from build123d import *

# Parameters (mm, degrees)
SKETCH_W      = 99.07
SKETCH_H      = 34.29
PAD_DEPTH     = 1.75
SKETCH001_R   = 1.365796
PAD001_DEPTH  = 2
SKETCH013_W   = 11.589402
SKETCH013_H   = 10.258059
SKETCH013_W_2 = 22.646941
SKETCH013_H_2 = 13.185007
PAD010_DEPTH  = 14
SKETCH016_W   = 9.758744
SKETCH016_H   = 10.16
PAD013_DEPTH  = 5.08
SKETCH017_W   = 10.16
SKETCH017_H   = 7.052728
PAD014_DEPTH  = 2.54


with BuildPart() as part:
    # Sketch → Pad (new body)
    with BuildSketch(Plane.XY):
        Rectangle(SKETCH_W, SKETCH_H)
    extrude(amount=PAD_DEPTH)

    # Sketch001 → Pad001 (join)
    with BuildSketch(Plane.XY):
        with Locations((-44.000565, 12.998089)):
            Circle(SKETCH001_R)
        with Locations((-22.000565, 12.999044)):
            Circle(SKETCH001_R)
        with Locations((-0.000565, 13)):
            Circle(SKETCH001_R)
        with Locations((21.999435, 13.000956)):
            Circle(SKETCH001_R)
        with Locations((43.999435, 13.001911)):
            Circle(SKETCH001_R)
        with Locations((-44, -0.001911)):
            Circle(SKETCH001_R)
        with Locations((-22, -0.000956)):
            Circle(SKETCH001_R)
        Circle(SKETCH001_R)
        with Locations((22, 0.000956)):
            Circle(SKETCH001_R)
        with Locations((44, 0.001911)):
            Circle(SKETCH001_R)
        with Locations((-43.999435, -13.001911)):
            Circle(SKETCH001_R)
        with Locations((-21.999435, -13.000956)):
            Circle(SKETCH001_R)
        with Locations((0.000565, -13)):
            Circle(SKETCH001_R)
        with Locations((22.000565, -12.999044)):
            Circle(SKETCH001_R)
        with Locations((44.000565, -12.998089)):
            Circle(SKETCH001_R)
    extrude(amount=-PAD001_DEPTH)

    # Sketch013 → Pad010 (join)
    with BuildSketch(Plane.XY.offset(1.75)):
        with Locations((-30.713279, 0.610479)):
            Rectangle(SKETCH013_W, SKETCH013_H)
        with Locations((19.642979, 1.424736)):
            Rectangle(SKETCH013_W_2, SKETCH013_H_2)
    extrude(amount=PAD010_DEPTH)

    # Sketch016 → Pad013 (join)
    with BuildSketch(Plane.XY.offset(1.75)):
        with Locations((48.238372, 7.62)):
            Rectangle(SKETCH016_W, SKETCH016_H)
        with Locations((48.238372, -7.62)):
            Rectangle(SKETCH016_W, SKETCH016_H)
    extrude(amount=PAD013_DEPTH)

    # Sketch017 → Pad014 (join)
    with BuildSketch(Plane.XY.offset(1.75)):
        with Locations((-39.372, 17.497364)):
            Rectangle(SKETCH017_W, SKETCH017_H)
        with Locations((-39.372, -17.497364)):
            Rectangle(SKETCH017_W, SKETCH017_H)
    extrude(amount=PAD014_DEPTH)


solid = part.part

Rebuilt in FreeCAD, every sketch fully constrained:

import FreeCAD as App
import Part
import Sketcher

V = App.Vector
Q = App.Units.Quantity


def add_polygon(sketch, points):
    """Adds a closed chain of lines whose ends are joined by coincident constraints."""
    first, n = sketch.GeometryCount, len(points)
    for a, b in zip(points, points[1:] + points[:1]):
        sketch.addGeometry(Part.LineSegment(App.Vector(*a, 0), App.Vector(*b, 0)), False)
    for i in range(n):
        sketch.addConstraint(Sketcher.Constraint("Coincident", first + i, 2, first + (i + 1) % n, 1))

doc = App.newDocument("Part")
body = doc.addObject("PartDesign::Body", "Body")

# Sketch on XY plane
sketch1 = doc.addObject("Sketcher::SketchObject", "Sketch")
body.addObject(sketch1)
sketch1.AttachmentSupport = (doc.XY_Plane, [""])
sketch1.MapMode = "FlatFace"
add_polygon(sketch1, [(-50, 17), (-50, -17), (50, -17), (50, 17)])  # lines 0-3
sketch1.addConstraint(Sketcher.Constraint("Vertical", 0))
sketch1.addConstraint(Sketcher.Constraint("Horizontal", 1))
sketch1.addConstraint(Sketcher.Constraint("Vertical", 2))
sketch1.addConstraint(Sketcher.Constraint("Horizontal", 3))
sketch1.addConstraint(Sketcher.Constraint("Symmetric", 0, 2, 2, 2, -1, 1))
sketch1.addConstraint(Sketcher.Constraint("DistanceY", 0, 2, 0, 1, Q("1.35 in")))
sketch1.addConstraint(Sketcher.Constraint("DistanceX", 1, 1, 1, 2, 99.07))
pad1 = doc.addObject("PartDesign::Pad", "Pad")
body.addObject(pad1)
pad1.Profile = sketch1
pad1.Length = 1.75

# Sketch on XY plane
sketch2 = doc.addObject("Sketcher::SketchObject", "Sketch001")
body.addObject(sketch2)
sketch2.AttachmentSupport = (doc.XY_Plane, [""])
sketch2.MapMode = "FlatFace"
sketch2.addGeometry(Part.Circle(V(-44, 13, 0), V(0, 0, 1), 1.4), False)
sketch2.addGeometry(Part.Circle(V(-22, 13, 0), V(0, 0, 1), 1.4), False)
sketch2.addGeometry(Part.Circle(V(0, 13, 0), V(0, 0, 1), 1.4), False)
sketch2.addGeometry(Part.Circle(V(22, 13, 0), V(0, 0, 1), 1.4), False)
sketch2.addGeometry(Part.Circle(V(44, 13, 0), V(0, 0, 1), 1.4), False)
sketch2.addGeometry(Part.Circle(V(-44, 0, 0), V(0, 0, 1), 1.4), False)
sketch2.addGeometry(Part.Circle(V(-22, 0, 0), V(0, 0, 1), 1.4), False)
sketch2.addGeometry(Part.Circle(V(0, 0, 0), V(0, 0, 1), 1.4), False)
sketch2.addGeometry(Part.Circle(V(22, 0, 0), V(0, 0, 1), 1.4), False)
sketch2.addGeometry(Part.Circle(V(44, 0, 0), V(0, 0, 1), 1.4), False)
sketch2.addGeometry(Part.Circle(V(-44, -13, 0), V(0, 0, 1), 1.4), False)
sketch2.addGeometry(Part.Circle(V(-22, -13, 0), V(0, 0, 1), 1.4), False)
sketch2.addGeometry(Part.Circle(V(0, -13, 0), V(0, 0, 1), 1.4), False)
sketch2.addGeometry(Part.Circle(V(22, -13, 0), V(0, 0, 1), 1.4), False)
sketch2.addGeometry(Part.Circle(V(44, -13, 0), V(0, 0, 1), 1.4), False)
sketch2.addConstraint(Sketcher.Constraint("Coincident", 7, 3, -1, 1))
sketch2.addConstraint(Sketcher.Constraint("Equal", 0, 1))
sketch2.addConstraint(Sketcher.Constraint("Equal", 1, 2))
sketch2.addConstraint(Sketcher.Constraint("Equal", 2, 3))
sketch2.addConstraint(Sketcher.Constraint("Equal", 3, 4))
sketch2.addConstraint(Sketcher.Constraint("Equal", 4, 5))
sketch2.addConstraint(Sketcher.Constraint("Equal", 5, 6))
sketch2.addConstraint(Sketcher.Constraint("Equal", 6, 7))
sketch2.addConstraint(Sketcher.Constraint("Equal", 7, 8))
sketch2.addConstraint(Sketcher.Constraint("Equal", 8, 9))
sketch2.addConstraint(Sketcher.Constraint("Equal", 9, 10))
sketch2.addConstraint(Sketcher.Constraint("Equal", 10, 11))
sketch2.addConstraint(Sketcher.Constraint("Equal", 11, 12))
sketch2.addConstraint(Sketcher.Constraint("Equal", 12, 13))
sketch2.addConstraint(Sketcher.Constraint("Equal", 13, 14))
sketch2.addConstraint(Sketcher.Constraint("Symmetric", 6, 3, 8, 3, -1, 1))
sketch2.addConstraint(Sketcher.Constraint("Symmetric", 5, 3, 9, 3, -1, 1))
sketch2.addConstraint(Sketcher.Constraint("Symmetric", 4, 3, 10, 3, -1, 1))
sketch2.addConstraint(Sketcher.Constraint("Symmetric", 3, 3, 11, 3, -1, 1))
sketch2.addConstraint(Sketcher.Constraint("Symmetric", 2, 3, 12, 3, -1, 1))
sketch2.addConstraint(Sketcher.Constraint("Symmetric", 1, 3, 13, 3, -1, 1))
sketch2.addConstraint(Sketcher.Constraint("Symmetric", 0, 3, 14, 3, -1, 1))
sketch2.addConstraint(Sketcher.Constraint("Diameter", 0, 2.731592))
sketch2.addConstraint(Sketcher.Constraint("DistanceY", -1, 1, 2, 3, 13.0))
sketch2.addConstraint(Sketcher.Constraint("DistanceX", 5, 3, -1, 1, 44.0))
sketch2.addConstraint(Sketcher.Constraint("DistanceX", 6, 3, -1, 1, 22.0))
sketch2.addConstraint(Sketcher.Constraint("DistanceX", 0, 3, 1, 3, 22.0))
sketch2.addConstraint(Sketcher.Constraint("DistanceX", 1, 3, 2, 3, 22.0))
sketch2.addConstraint(Sketcher.Constraint("DistanceX", 2, 3, 3, 3, 22.0))
sketch2.addConstraint(Sketcher.Constraint("DistanceX", 3, 3, 4, 3, 22.0))
sketch2.addConstraint(Sketcher.Constraint("DistanceY", 5, 3, 0, 3, 13.0))
sketch2.addConstraint(Sketcher.Constraint("DistanceY", 6, 3, 1, 3, 13.0))
sketch2.addConstraint(Sketcher.Constraint("DistanceY", 8, 3, 3, 3, 13.0))
sketch2.addConstraint(Sketcher.Constraint("DistanceY", 9, 3, 4, 3, 13.0))
sketch2.addConstraint(Sketcher.Constraint("DistanceY", -1, 1, 0, 3, 12.998089))
sketch2.addConstraint(Sketcher.Constraint("DistanceX", 0, 3, 10, 3, 0.00113))
sketch2.addConstraint(Sketcher.Constraint("DistanceY", -1, 1, 1, 3, 12.999044))
pad2 = doc.addObject("PartDesign::Pad", "Pad001")
body.addObject(pad2)
pad2.Profile = sketch2
pad2.Length = 2
pad2.Reversed = True

# Sketch on XY plane
sketch3 = doc.addObject("Sketcher::SketchObject", "Sketch002")
body.addObject(sketch3)
sketch3.AttachmentSupport = (doc.XY_Plane, [""])
sketch3.MapMode = "FlatFace"
sketch3.AttachmentOffset = App.Placement(V(0, 0, 1.75), App.Rotation())
add_polygon(sketch3, [(-37, 6), (-37, -5), (-25, -5), (-25, 6)])  # lines 0-3
add_polygon(sketch3, [(8, 8), (8, -5), (31, -5), (31, 8)])  # lines 4-7
sketch3.addConstraint(Sketcher.Constraint("Vertical", 0))
sketch3.addConstraint(Sketcher.Constraint("Horizontal", 1))
sketch3.addConstraint(Sketcher.Constraint("Vertical", 2))
sketch3.addConstraint(Sketcher.Constraint("Horizontal", 3))
sketch3.addConstraint(Sketcher.Constraint("Vertical", 4))
sketch3.addConstraint(Sketcher.Constraint("Horizontal", 5))
sketch3.addConstraint(Sketcher.Constraint("Vertical", 6))
sketch3.addConstraint(Sketcher.Constraint("Horizontal", 7))
sketch3.addConstraint(Sketcher.Constraint("DistanceX", 5, 1, 5, 2, 22.646941))
sketch3.addConstraint(Sketcher.Constraint("DistanceY", 0, 2, 0, 1, 10.258059))
sketch3.addConstraint(Sketcher.Constraint("DistanceX", 1, 1, 1, 2, 11.589402))
sketch3.addConstraint(Sketcher.Constraint("DistanceY", 4, 2, 4, 1, 13.185007))
sketch3.addConstraint(Sketcher.Constraint("DistanceX", 0, 2, -1, 1, 36.50798))
sketch3.addConstraint(Sketcher.Constraint("DistanceY", 0, 2, -1, 1, 4.51855))
sketch3.addConstraint(Sketcher.Constraint("DistanceX", -1, 1, 4, 2, 8.319508))
sketch3.addConstraint(Sketcher.Constraint("DistanceY", -1, 1, 6, 2, 8.01724))
pad3 = doc.addObject("PartDesign::Pad", "Pad002")
body.addObject(pad3)
pad3.Profile = sketch3
pad3.Length = 14

# Sketch on XY plane
sketch4 = doc.addObject("Sketcher::SketchObject", "Sketch003")
body.addObject(sketch4)
sketch4.AttachmentSupport = (doc.XY_Plane, [""])
sketch4.MapMode = "FlatFace"
sketch4.AttachmentOffset = App.Placement(V(0, 0, 1.75), App.Rotation())
add_polygon(sketch4, [(43, 13), (43, 3), (53, 3), (53, 13)])  # lines 0-3
add_polygon(sketch4, [(43, -3), (43, -13), (53, -13), (53, -3)])  # lines 4-7
sketch4.addConstraint(Sketcher.Constraint("Vertical", 0))
sketch4.addConstraint(Sketcher.Constraint("Horizontal", 1))
sketch4.addConstraint(Sketcher.Constraint("Vertical", 2))
sketch4.addConstraint(Sketcher.Constraint("Horizontal", 3))
sketch4.addConstraint(Sketcher.Constraint("Vertical", 4))
sketch4.addConstraint(Sketcher.Constraint("Horizontal", 5))
sketch4.addConstraint(Sketcher.Constraint("Vertical", 6))
sketch4.addConstraint(Sketcher.Constraint("Horizontal", 7))
sketch4.addConstraint(Sketcher.Constraint("Symmetric", 3, 2, 4, 2, -1))
sketch4.addConstraint(Sketcher.Constraint("Symmetric", 1, 2, 6, 2, -1))
sketch4.addConstraint(Sketcher.Constraint("DistanceY", 0, 2, 0, 1, Q("0.4 in")))
sketch4.addConstraint(Sketcher.Constraint("DistanceY", 4, 2, 3, 2, Q("1 in")))
sketch4.addConstraint(Sketcher.Constraint("DistanceX", -1, 1, 0, 2, 43.359))
sketch4.addConstraint(Sketcher.Constraint("DistanceX", 1, 1, 1, 2, 9.758744))
pad4 = doc.addObject("PartDesign::Pad", "Pad003")
body.addObject(pad4)
pad4.Profile = sketch4
pad4.Length = Q("0.2 in")

# Sketch on XY plane
sketch5 = doc.addObject("Sketcher::SketchObject", "Sketch004")
body.addObject(sketch5)
sketch5.AttachmentSupport = (doc.XY_Plane, [""])
sketch5.MapMode = "FlatFace"
sketch5.AttachmentOffset = App.Placement(V(0, 0, 1.75), App.Rotation())
add_polygon(sketch5, [(-44, 21), (-44, 14), (-34, 14), (-34, 21)])  # lines 0-3
add_polygon(sketch5, [(-44, -14), (-44, -21), (-34, -21), (-34, -14)])  # lines 4-7
sketch5.addConstraint(Sketcher.Constraint("Vertical", 0))
sketch5.addConstraint(Sketcher.Constraint("Horizontal", 1))
sketch5.addConstraint(Sketcher.Constraint("Vertical", 2))
sketch5.addConstraint(Sketcher.Constraint("Horizontal", 3))
sketch5.addConstraint(Sketcher.Constraint("Vertical", 4))
sketch5.addConstraint(Sketcher.Constraint("Horizontal", 5))
sketch5.addConstraint(Sketcher.Constraint("Vertical", 6))
sketch5.addConstraint(Sketcher.Constraint("Horizontal", 7))
sketch5.addConstraint(Sketcher.Constraint("Symmetric", 3, 2, 4, 2, -1))
sketch5.addConstraint(Sketcher.Constraint("Symmetric", 1, 2, 6, 2, -1))
sketch5.addConstraint(Sketcher.Constraint("DistanceX", 1, 1, 1, 2, Q("0.4 in")))
sketch5.addConstraint(Sketcher.Constraint("DistanceX", 0, 2, -1, 1, 44.452))
sketch5.addConstraint(Sketcher.Constraint("DistanceY", -1, 1, 0, 2, 13.971))
sketch5.addConstraint(Sketcher.Constraint("DistanceY", 0, 2, 0, 1, 7.052728))
pad5 = doc.addObject("PartDesign::Pad", "Pad004")
body.addObject(pad5)
pad5.Profile = sketch5
pad5.Length = Q("0.1 in")

doc.recompute()
